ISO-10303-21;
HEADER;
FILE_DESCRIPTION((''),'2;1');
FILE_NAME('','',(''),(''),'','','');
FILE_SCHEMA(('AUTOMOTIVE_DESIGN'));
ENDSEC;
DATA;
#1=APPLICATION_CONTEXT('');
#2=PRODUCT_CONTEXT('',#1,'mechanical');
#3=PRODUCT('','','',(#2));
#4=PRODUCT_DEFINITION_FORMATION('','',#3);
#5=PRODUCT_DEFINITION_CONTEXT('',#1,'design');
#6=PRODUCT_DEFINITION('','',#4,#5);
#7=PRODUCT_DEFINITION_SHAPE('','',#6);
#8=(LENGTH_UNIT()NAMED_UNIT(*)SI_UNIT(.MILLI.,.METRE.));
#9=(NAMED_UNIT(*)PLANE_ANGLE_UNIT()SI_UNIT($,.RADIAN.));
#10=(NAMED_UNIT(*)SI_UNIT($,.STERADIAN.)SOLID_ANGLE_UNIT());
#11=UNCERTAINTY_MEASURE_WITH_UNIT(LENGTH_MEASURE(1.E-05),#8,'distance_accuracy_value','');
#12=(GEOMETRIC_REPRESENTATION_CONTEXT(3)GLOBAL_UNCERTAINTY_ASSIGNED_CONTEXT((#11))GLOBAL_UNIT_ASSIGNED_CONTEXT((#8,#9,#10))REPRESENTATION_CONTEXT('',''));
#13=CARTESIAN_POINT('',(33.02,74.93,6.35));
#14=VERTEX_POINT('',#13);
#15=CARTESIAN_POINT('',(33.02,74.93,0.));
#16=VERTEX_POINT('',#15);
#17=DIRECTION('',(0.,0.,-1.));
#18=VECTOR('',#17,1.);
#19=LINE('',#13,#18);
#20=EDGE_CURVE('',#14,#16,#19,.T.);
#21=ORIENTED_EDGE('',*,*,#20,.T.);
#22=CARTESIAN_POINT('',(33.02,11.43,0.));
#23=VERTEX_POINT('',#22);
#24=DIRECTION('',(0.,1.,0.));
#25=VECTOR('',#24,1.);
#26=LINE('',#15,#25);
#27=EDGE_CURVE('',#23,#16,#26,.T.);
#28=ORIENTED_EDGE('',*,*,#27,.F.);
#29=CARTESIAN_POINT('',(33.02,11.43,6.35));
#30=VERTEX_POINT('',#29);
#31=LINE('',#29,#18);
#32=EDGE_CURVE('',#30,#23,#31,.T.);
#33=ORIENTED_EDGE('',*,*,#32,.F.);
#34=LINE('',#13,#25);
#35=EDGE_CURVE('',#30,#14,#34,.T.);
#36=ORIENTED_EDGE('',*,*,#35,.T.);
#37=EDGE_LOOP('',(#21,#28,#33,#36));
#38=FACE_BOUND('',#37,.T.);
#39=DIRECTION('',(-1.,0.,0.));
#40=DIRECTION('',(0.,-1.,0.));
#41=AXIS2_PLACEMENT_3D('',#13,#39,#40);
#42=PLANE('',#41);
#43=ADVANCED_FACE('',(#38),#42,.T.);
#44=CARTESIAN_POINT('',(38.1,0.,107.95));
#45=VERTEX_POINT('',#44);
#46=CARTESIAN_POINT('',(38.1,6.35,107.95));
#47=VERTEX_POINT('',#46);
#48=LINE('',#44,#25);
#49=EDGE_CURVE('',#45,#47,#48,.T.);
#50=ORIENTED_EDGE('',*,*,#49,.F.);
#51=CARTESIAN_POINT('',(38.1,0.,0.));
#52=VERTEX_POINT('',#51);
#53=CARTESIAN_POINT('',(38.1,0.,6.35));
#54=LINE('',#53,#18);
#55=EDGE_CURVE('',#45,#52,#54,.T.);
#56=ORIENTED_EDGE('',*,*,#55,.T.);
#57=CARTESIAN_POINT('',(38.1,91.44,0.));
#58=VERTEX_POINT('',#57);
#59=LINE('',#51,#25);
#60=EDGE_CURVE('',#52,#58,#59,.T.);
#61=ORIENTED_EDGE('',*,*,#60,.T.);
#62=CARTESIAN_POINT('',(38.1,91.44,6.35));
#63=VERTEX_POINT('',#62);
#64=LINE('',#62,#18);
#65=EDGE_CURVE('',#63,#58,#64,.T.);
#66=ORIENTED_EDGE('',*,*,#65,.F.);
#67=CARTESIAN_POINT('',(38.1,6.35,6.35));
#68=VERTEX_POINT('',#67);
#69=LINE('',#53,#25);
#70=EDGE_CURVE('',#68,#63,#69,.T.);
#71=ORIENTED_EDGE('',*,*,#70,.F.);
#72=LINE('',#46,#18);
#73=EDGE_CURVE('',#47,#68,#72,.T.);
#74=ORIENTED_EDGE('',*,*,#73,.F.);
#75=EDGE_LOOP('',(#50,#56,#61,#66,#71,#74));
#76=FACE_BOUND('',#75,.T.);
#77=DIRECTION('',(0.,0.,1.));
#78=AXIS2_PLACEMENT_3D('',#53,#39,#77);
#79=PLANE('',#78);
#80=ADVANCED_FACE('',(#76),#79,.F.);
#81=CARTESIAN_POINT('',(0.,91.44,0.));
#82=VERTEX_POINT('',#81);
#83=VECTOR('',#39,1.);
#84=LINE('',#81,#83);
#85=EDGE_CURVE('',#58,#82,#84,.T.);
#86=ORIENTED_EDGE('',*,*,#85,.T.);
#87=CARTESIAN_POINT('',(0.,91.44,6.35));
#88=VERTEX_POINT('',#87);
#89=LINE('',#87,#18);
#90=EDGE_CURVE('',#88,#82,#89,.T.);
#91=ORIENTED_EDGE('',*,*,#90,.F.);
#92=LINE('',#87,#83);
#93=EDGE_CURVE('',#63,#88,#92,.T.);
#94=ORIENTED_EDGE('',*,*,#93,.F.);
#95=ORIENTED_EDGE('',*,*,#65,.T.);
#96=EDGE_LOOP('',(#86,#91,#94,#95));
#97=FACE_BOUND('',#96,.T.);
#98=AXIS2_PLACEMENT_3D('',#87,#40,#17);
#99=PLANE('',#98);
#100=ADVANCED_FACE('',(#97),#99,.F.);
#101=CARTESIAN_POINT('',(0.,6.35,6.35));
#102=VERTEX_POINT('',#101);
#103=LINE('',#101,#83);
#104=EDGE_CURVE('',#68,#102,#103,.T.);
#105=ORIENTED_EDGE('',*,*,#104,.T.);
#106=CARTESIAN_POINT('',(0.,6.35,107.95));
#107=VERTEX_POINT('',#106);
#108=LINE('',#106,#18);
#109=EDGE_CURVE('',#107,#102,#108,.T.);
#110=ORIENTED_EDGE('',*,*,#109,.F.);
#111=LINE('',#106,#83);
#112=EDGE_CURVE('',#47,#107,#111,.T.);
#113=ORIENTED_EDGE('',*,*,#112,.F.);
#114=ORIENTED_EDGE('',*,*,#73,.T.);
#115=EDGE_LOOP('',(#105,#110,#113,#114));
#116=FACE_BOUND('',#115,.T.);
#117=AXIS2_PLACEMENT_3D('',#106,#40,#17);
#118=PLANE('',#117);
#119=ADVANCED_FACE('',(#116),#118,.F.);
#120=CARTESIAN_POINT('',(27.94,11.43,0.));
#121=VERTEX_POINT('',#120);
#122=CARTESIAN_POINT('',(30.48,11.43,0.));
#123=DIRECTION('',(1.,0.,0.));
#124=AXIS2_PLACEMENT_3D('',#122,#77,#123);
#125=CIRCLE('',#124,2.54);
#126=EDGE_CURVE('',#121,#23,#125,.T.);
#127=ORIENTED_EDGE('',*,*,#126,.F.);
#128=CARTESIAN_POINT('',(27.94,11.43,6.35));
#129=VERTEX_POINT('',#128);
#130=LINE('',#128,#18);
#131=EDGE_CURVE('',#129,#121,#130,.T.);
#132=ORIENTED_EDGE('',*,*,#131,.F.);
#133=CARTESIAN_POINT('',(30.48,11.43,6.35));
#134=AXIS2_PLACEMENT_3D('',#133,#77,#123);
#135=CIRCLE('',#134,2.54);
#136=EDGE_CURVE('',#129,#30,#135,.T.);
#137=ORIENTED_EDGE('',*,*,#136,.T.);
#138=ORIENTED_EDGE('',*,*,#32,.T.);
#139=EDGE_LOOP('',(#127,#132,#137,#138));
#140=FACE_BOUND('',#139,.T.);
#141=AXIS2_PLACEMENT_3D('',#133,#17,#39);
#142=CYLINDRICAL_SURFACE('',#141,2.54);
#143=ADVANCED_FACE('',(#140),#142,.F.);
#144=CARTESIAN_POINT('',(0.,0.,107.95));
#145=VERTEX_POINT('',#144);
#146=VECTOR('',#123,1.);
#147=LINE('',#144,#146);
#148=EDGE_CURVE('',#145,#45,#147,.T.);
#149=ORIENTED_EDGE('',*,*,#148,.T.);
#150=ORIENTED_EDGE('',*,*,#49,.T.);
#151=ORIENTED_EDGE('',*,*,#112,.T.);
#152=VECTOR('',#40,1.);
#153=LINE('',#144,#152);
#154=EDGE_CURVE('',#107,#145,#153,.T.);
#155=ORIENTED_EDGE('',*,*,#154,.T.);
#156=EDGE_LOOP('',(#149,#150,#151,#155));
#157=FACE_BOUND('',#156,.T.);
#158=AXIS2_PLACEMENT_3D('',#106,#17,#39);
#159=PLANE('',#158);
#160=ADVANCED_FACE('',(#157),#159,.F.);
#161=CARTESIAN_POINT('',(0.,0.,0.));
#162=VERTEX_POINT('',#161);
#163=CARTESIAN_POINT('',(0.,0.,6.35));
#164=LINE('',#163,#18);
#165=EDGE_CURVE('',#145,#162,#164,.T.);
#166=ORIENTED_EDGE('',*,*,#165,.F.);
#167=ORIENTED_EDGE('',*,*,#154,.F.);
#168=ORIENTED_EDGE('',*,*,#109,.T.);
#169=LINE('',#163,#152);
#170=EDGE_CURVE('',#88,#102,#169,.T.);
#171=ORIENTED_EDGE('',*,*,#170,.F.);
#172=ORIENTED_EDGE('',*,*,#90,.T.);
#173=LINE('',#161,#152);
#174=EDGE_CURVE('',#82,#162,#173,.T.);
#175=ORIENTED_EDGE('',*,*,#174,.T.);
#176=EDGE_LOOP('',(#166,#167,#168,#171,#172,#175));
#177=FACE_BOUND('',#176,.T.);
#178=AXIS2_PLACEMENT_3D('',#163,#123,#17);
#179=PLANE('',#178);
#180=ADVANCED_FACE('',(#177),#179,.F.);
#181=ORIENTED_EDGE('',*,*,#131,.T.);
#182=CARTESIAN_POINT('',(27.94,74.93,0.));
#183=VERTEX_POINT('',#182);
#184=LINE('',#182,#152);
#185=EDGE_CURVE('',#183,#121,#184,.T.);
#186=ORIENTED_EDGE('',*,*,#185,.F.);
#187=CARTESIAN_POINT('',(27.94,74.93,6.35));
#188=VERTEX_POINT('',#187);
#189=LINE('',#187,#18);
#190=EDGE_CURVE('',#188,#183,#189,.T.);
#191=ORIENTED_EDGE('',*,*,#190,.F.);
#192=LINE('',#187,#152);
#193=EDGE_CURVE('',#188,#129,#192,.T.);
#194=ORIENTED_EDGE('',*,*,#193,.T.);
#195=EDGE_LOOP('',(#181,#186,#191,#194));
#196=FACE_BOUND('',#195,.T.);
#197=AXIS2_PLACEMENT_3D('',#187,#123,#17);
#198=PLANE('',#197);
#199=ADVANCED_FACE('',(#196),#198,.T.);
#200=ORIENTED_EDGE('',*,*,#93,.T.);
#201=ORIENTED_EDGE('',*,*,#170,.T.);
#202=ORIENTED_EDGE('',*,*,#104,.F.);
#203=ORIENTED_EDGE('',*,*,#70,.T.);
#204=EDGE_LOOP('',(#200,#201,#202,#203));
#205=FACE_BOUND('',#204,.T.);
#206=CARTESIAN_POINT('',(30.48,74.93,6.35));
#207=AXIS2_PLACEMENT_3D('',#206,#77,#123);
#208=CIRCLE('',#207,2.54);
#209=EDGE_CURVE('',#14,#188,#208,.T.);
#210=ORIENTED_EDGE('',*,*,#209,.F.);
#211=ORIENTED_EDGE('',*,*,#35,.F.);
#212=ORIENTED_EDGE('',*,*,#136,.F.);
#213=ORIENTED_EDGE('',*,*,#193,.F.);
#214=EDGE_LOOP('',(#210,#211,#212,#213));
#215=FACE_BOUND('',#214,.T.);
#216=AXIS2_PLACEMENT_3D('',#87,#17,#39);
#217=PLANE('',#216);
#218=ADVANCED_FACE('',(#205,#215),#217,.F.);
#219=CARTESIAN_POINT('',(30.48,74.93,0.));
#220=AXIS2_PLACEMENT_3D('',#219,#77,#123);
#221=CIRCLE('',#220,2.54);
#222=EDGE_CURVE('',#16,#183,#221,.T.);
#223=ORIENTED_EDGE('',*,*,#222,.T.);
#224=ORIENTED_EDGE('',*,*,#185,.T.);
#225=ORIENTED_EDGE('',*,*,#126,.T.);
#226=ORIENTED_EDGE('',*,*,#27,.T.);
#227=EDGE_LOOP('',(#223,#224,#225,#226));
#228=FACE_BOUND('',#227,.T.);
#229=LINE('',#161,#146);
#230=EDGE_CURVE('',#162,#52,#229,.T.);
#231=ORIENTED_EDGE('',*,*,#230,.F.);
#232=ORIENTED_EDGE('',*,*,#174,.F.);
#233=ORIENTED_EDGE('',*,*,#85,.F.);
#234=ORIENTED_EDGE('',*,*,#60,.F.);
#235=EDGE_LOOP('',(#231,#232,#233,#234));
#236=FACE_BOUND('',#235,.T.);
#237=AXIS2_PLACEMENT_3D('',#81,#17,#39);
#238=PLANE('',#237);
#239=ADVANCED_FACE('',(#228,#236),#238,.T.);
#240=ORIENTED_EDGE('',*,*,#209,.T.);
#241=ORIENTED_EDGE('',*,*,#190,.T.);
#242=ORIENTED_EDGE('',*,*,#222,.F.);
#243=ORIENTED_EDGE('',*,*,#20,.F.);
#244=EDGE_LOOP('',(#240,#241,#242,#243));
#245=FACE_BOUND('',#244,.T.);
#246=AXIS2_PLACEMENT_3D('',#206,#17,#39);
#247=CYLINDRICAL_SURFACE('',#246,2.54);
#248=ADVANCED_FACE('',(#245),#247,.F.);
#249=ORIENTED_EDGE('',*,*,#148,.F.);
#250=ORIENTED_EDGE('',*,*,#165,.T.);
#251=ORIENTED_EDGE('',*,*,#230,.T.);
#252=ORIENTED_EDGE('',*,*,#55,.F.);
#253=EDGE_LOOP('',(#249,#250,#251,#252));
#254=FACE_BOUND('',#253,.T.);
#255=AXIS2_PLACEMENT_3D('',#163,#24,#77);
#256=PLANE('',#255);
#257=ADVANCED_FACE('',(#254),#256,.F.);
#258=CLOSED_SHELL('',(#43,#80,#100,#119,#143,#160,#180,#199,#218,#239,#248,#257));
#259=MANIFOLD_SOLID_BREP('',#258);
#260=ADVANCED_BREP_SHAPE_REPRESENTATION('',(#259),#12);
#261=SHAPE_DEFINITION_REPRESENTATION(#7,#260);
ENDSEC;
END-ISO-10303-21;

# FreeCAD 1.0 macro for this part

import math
import FreeCAD as App
import Part
import Sketcher

V = App.Vector
Q = App.Units.Quantity


def add_polygon(sketch, points):
    """Adds a closed chain of lines whose ends are joined by coincident constraints."""
    first, n = sketch.GeometryCount, len(points)
    for a, b in zip(points, points[1:] + points[:1]):
        sketch.addGeometry(Part.LineSegment(App.Vector(*a, 0), App.Vector(*b, 0)), False)
    for i in range(n):
        sketch.addConstraint(Sketcher.Constraint("Coincident", first + i, 2, first + (i + 1) % n, 1))

doc = App.newDocument("Part")
body = doc.addObject("PartDesign::Body", "Body")

# Sketch on XY plane
sketch1 = doc.addObject("Sketcher::SketchObject", "Sketch")
body.addObject(sketch1)
sketch1.AttachmentSupport = (doc.XY_Plane, [""])
sketch1.MapMode = "FlatFace"
add_polygon(sketch1, [(0, 91.44), (0, 0), (38.1, 0), (38.1, 91.44)])  # lines 0-3
sketch1.addGeometry(Part.ArcOfCircle(Part.Circle(V(30.48, 74.93, 0), V(0, 0, 1), 2.54), math.radians(0), math.radians(180)), False)  # 4
sketch1.addGeometry(Part.LineSegment(V(33.02, 74.93, 0), V(33.02, 11.43, 0)), False)  # 5
sketch1.addGeometry(Part.ArcOfCircle(Part.Circle(V(30.48, 11.43, 0), V(0, 0, 1), 2.54), math.radians(180), math.radians(360)), False)  # 6
sketch1.addGeometry(Part.LineSegment(V(27.94, 11.43, 0), V(27.94, 74.93, 0)), False)  # 7
sketch1.addConstraint([
    Sketcher.Constraint("Tangent", 4, 1, 5, 1),
    Sketcher.Constraint("Tangent", 5, 2, 6, 2),
    Sketcher.Constraint("Tangent", 6, 1, 7, 1),
    Sketcher.Constraint("Tangent", 7, 2, 4, 2),
    Sketcher.Constraint("Vertical", 0),
    Sketcher.Constraint("Horizontal", 1),
    Sketcher.Constraint("Vertical", 2),
    Sketcher.Constraint("Horizontal", 3),
    Sketcher.Constraint("Vertical", 5),
    Sketcher.Constraint("Vertical", 7),
    Sketcher.Constraint("Coincident", 0, 2, -1, 1),
    Sketcher.Constraint("Radius", 4, Q("0.1 in")),
    Sketcher.Constraint("DistanceX", 1, 1, 1, 2, Q("1.5 in")),
    Sketcher.Constraint("DistanceY", 0, 2, 0, 1, Q("3.6 in")),
    Sketcher.Constraint("DistanceY", 5, 2, 5, 1, Q("2.5 in")),
    Sketcher.Constraint("DistanceX", -1, 1, 4, 3, Q("1.2 in")),
    Sketcher.Constraint("DistanceY", -1, 1, 4, 3, Q("2.95 in")),
])
pad1 = doc.addObject("PartDesign::Pad", "Pad")
body.addObject(pad1)
pad1.Profile = sketch1
pad1.Length = Q("0.25 in")

# Sketch on XY plane
sketch2 = doc.addObject("Sketcher::SketchObject", "Sketch001")
body.addObject(sketch2)
sketch2.AttachmentSupport = (doc.XY_Plane, [""])
sketch2.MapMode = "FlatFace"
sketch2.AttachmentOffset = App.Placement(V(0, 0, 0.25 * 25.4), App.Rotation())
add_polygon(sketch2, [(0, 6.35), (0, 0), (38.1, 0), (38.1, 6.35)])  # lines 0-3
sketch2.addConstraint([
    Sketcher.Constraint("Vertical", 0),
    Sketcher.Constraint("Horizontal", 1),
    Sketcher.Constraint("Vertical", 2),
    Sketcher.Constraint("Horizontal", 3),
    Sketcher.Constraint("Coincident", 0, 2, -1, 1),
    Sketcher.Constraint("DistanceX", 1, 1, 1, 2, Q("1.5 in")),
    Sketcher.Constraint("DistanceY", 0, 2, 0, 1, Q("0.25 in")),
])
pad2 = doc.addObject("PartDesign::Pad", "Pad001")
body.addObject(pad2)
pad2.Profile = sketch2
pad2.Length = Q("4 in")

doc.recompute()
